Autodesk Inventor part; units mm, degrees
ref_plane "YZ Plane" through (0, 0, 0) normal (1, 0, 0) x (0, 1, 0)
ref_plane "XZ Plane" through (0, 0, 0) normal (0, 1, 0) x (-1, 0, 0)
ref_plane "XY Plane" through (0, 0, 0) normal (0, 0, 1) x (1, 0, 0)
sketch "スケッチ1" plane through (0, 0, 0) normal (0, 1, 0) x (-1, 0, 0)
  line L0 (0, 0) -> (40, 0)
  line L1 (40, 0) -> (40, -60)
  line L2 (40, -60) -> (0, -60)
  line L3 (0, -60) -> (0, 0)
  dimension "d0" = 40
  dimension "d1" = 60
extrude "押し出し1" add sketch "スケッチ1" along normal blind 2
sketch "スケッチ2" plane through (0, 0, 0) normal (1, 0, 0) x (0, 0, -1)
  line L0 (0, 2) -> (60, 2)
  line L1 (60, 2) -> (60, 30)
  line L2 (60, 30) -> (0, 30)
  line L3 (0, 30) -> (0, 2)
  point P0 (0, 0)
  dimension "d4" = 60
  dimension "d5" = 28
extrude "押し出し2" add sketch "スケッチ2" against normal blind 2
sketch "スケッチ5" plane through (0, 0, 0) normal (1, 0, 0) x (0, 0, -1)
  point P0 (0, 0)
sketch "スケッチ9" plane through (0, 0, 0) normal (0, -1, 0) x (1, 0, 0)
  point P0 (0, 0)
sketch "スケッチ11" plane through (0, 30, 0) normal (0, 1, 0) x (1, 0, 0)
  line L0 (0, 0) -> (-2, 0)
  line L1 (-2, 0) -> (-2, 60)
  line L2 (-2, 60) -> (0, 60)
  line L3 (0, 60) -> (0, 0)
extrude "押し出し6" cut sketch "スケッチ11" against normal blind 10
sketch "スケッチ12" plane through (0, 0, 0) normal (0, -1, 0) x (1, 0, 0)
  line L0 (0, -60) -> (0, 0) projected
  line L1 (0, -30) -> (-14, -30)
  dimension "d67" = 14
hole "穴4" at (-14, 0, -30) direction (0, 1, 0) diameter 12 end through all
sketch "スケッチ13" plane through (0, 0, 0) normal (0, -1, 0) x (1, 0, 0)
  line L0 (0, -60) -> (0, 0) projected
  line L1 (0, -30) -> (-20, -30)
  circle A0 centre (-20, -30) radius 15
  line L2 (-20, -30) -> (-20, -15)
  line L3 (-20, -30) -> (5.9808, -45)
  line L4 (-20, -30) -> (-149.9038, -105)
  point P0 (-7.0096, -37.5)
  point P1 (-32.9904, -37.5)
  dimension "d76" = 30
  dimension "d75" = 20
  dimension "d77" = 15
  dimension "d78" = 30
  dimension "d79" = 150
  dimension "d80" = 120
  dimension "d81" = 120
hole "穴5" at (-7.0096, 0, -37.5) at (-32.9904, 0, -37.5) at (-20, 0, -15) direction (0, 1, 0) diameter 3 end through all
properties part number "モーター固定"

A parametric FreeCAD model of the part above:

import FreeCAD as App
import Part
import Sketcher
from FreeCAD import Vector


def add_polygon(sketch, points):
    """Adds a closed chain of lines whose ends are joined by coincident constraints."""
    first, n = sketch.GeometryCount, len(points)
    for a, b in zip(points, points[1:] + points[:1]):
        sketch.addGeometry(Part.LineSegment(App.Vector(*a, 0), App.Vector(*b, 0)), False)
    for i in range(n):
        sketch.addConstraint(Sketcher.Constraint("Coincident", first + i, 2, first + (i + 1) % n, 1))

doc = App.newDocument("Part")
body = doc.addObject("PartDesign::Body", "Body")

# Sketch on XZ plane
sketch1 = body.newObject("Sketcher::SketchObject", "Sketch")
sketch1.AttachmentSupport = (doc.getObject("XZ_Plane"), [""])
sketch1.MapMode = "FlatFace"
add_polygon(sketch1, [(-40, 0), (0, 0), (0, -60), (-40, -60)])  # lines 0-3
sketch1.addConstraint(Sketcher.Constraint("Horizontal", 0))
sketch1.addConstraint(Sketcher.Constraint("Vertical", 1))
sketch1.addConstraint(Sketcher.Constraint("Horizontal", 2))
sketch1.addConstraint(Sketcher.Constraint("Vertical", 3))
sketch1.addConstraint(Sketcher.Constraint("Coincident", 0, 2, -1, 1))
sketch1.addConstraint(Sketcher.Constraint("DistanceX", 0, 1, 0, 2, 40.0))
sketch1.addConstraint(Sketcher.Constraint("DistanceY", 1, 2, 1, 1, 60.0))
pad1 = body.newObject("PartDesign::Pad", "Pad")
pad1.Profile = sketch1
pad1.Length = 2
pad1.Reversed = True

# Sketch on YZ plane
sketch2 = body.newObject("Sketcher::SketchObject", "Sketch001")
sketch2.AttachmentSupport = (doc.getObject("YZ_Plane"), [""])
sketch2.MapMode = "FlatFace"
add_polygon(sketch2, [(30, 0), (2, 0), (2, -60), (30, -60)])  # lines 0-3
sketch2.addConstraint(Sketcher.Constraint("Horizontal", 0))
sketch2.addConstraint(Sketcher.Constraint("Vertical", 1))
sketch2.addConstraint(Sketcher.Constraint("Horizontal", 2))
sketch2.addConstraint(Sketcher.Constraint("Vertical", 3))
sketch2.addConstraint(Sketcher.Constraint("PointOnObject", 0, 2, -1))
sketch2.addConstraint(Sketcher.Constraint("DistanceX", 0, 2, 0, 1, 28.0))
sketch2.addConstraint(Sketcher.Constraint("DistanceY", 1, 2, 1, 1, 60.0))
sketch2.addConstraint(Sketcher.Constraint("DistanceX", -1, 1, 0, 2, 2.0))
pad2 = body.newObject("PartDesign::Pad", "Pad001")
pad2.Profile = sketch2
pad2.Length = 2
pad2.Reversed = True

# Sketch on XZ plane
sketch3 = body.newObject("Sketcher::SketchObject", "Sketch002")
sketch3.AttachmentSupport = (doc.getObject("XZ_Plane"), [""])
sketch3.MapMode = "FlatFace"
sketch3.AttachmentOffset = App.Placement(Vector(0, 0, -30), App.Rotation())
add_polygon(sketch3, [(-2, 0), (0, 0), (0, -60), (-2, -60)])  # lines 0-3
sketch3.addConstraint(Sketcher.Constraint("Horizontal", 0))
sketch3.addConstraint(Sketcher.Constraint("Vertical", 1))
sketch3.addConstraint(Sketcher.Constraint("Horizontal", 2))
sketch3.addConstraint(Sketcher.Constraint("Vertical", 3))
sketch3.addConstraint(Sketcher.Constraint("Coincident", 0, 2, -1, 1))
sketch3.addConstraint(Sketcher.Constraint("DistanceX", 0, 1, 0, 2, 2.0))
sketch3.addConstraint(Sketcher.Constraint("DistanceY", 1, 2, 1, 1, 60.0))
pocket1 = body.newObject("PartDesign::Pocket", "Pocket")
pocket1.Profile = sketch3
pocket1.Length = 10
pocket1.Reversed = True

# Sketch on XZ plane
sketch4 = body.newObject("Sketcher::SketchObject", "Sketch003")
sketch4.AttachmentSupport = (doc.getObject("XZ_Plane"), [""])
sketch4.MapMode = "FlatFace"
sketch4.addGeometry(Part.Circle(Vector(-14, -30, 0), Vector(0, 0, 1), 6), False)
sketch4.addConstraint(Sketcher.Constraint("Diameter", 0, 12.0))
sketch4.addConstraint(Sketcher.Constraint("DistanceX", 0, 3, -1, 1, 14.0))
sketch4.addConstraint(Sketcher.Constraint("DistanceY", 0, 3, -1, 1, 30.0))
doc.recompute()
hole = body.newObject("PartDesign::Hole", "Hole")
hole.Profile = sketch4
hole.ThreadType = "None"
hole.Diameter = 12
hole.DepthType = "ThroughAll"

# Sketch on XZ plane
sketch5 = body.newObject("Sketcher::SketchObject", "Sketch004")
sketch5.AttachmentSupport = (doc.getObject("XZ_Plane"), [""])
sketch5.MapMode = "FlatFace"
sketch5.addGeometry(Part.Circle(Vector(-7, -37.5, 0), Vector(0, 0, 1), 1.5), False)
sketch5.addGeometry(Part.Circle(Vector(-33, -37.5, 0), Vector(0, 0, 1), 1.5), False)
sketch5.addGeometry(Part.Circle(Vector(-20, -15, 0), Vector(0, 0, 1), 1.5), False)
sketch5.addConstraint(Sketcher.Constraint("Equal", 0, 1))
sketch5.addConstraint(Sketcher.Constraint("Equal", 1, 2))
sketch5.addConstraint(Sketcher.Constraint("Horizontal", 0, 3, 1, 3))
sketch5.addConstraint(Sketcher.Constraint("Diameter", 0, 3.0))
sketch5.addConstraint(Sketcher.Constraint("DistanceX", 2, 3, -1, 1, 20.0))
sketch5.addConstraint(Sketcher.Constraint("DistanceY", 2, 3, -1, 1, 15.0))
sketch5.addConstraint(Sketcher.Constraint("DistanceY", 0, 3, -1, 1, 37.5))
sketch5.addConstraint(Sketcher.Constraint("DistanceX", 0, 3, -1, 1, 7.0096))
sketch5.addConstraint(Sketcher.Constraint("DistanceX", 1, 3, -1, 1, 32.9904))
doc.recompute()
hole2 = body.newObject("PartDesign::Hole", "Hole001")
hole2.Profile = sketch5
hole2.ThreadType = "None"
hole2.Diameter = 3
hole2.DepthType = "ThroughAll"

doc.recompute()
